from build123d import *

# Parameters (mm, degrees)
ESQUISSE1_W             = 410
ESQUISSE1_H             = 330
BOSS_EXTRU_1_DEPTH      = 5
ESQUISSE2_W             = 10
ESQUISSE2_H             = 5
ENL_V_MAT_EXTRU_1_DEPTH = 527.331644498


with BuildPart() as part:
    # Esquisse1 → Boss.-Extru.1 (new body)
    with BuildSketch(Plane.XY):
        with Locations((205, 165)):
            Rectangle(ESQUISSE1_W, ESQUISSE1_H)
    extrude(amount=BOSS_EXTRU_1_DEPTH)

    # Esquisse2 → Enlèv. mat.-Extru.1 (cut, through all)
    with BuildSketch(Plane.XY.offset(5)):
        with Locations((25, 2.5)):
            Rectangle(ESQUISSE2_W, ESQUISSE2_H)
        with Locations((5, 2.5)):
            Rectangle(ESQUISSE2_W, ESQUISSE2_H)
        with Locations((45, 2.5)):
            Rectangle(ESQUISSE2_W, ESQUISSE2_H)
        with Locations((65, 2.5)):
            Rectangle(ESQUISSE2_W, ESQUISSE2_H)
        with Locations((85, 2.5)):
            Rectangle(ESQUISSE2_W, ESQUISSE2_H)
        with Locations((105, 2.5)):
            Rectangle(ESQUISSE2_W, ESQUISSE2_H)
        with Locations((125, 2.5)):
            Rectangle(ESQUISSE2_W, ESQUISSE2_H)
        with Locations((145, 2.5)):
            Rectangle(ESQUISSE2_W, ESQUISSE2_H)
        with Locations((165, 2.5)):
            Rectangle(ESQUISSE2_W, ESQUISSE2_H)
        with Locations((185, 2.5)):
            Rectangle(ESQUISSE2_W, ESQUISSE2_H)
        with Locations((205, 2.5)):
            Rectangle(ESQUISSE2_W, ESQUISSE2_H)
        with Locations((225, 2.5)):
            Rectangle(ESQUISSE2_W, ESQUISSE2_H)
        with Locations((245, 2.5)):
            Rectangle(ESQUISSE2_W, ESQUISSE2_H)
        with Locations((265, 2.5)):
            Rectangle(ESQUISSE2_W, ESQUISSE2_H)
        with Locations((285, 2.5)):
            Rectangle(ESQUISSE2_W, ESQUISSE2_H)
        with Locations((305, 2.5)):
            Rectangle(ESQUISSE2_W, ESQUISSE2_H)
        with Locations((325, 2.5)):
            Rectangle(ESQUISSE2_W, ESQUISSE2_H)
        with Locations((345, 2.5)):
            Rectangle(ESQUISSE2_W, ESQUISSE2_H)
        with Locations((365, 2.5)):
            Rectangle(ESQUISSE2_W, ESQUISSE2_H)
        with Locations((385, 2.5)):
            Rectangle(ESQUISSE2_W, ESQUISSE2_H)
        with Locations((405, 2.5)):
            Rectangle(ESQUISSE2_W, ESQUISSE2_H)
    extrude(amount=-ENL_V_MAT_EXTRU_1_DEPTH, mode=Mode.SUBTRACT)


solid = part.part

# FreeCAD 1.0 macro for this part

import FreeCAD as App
import Part
import Sketcher
Q = App.Units.Quantity

doc = App.newDocument("Part")
body = doc.addObject("PartDesign::Body", "Body")

sketch1 = body.newObject("Sketcher::SketchObject", "Sketch")
sketch1.AttachmentSupport = (doc.getObject("XY_Plane"), [""])
sketch1.MapMode = "FlatFace"
sketch1.addGeometry([
    Part.LineSegment(App.Vector(0, 330, 0), App.Vector(0, 0, 0)),
    Part.LineSegment(App.Vector(0, 0, 0), App.Vector(410, 0, 0)),
    Part.LineSegment(App.Vector(410, 0, 0), App.Vector(410, 330, 0)),
    Part.LineSegment(App.Vector(410, 330, 0), App.Vector(0, 330, 0)),
], False)
sketch1.addConstraint([
    Sketcher.Constraint("Coincident", 0, 2, 1, 1),
    Sketcher.Constraint("Coincident", 1, 2, 2, 1),
    Sketcher.Constraint("Coincident", 2, 2, 3, 1),
    Sketcher.Constraint("Coincident", 3, 2, 0, 1),
    Sketcher.Constraint("Vertical", 0),
    Sketcher.Constraint("Horizontal", 1),
    Sketcher.Constraint("Vertical", 2),
    Sketcher.Constraint("Horizontal", 3),
    Sketcher.Constraint("Coincident", 0, 2, -1, 1),
    Sketcher.Constraint("DistanceX", 1, 1, 1, 2, Q("410 mm")),
    Sketcher.Constraint("DistanceY", 0, 2, 0, 1, Q("330 mm")),
])
pad1 = body.newObject("PartDesign::Pad", "Pad")
pad1.Profile = sketch1
pad1.Length = 5

sketch2 = body.newObject("Sketcher::SketchObject", "Sketch001")
sketch2.AttachmentSupport = (doc.getObject("XY_Plane"), [""])
sketch2.MapMode = "FlatFace"
sketch2.AttachmentOffset = App.Placement(App.Vector(0, 0, 5), App.Rotation())
sketch2.addGeometry([
    Part.LineSegment(App.Vector(20, 5, 0), App.Vector(20, 0, 0)),
    Part.LineSegment(App.Vector(20, 0, 0), App.Vector(30, 0, 0)),
    Part.LineSegment(App.Vector(30, 0, 0), App.Vector(30, 5, 0)),
    Part.LineSegment(App.Vector(30, 5, 0), App.Vector(20, 5, 0)),
    Part.LineSegment(App.Vector(0, 5, 0), App.Vector(0, 0, 0)),
    Part.LineSegment(App.Vector(0, 0, 0), App.Vector(10, 0, 0)),
    Part.LineSegment(App.Vector(10, 0, 0), App.Vector(10, 5, 0)),
    Part.LineSegment(App.Vector(10, 5, 0), App.Vector(0, 5, 0)),
    Part.LineSegment(App.Vector(40, 5, 0), App.Vector(40, 0, 0)),
    Part.LineSegment(App.Vector(40, 0, 0), App.Vector(50, 0, 0)),
    Part.LineSegment(App.Vector(50, 0, 0), App.Vector(50, 5, 0)),
    Part.LineSegment(App.Vector(50, 5, 0), App.Vector(40, 5, 0)),
    Part.LineSegment(App.Vector(60, 5, 0), App.Vector(60, 0, 0)),
    Part.LineSegment(App.Vector(60, 0, 0), App.Vector(70, 0, 0)),
    Part.LineSegment(App.Vector(70, 0, 0), App.Vector(70, 5, 0)),
    Part.LineSegment(App.Vector(70, 5, 0), App.Vector(60, 5, 0)),
    Part.LineSegment(App.Vector(80, 5, 0), App.Vector(80, 0, 0)),
    Part.LineSegment(App.Vector(80, 0, 0), App.Vector(90, 0, 0)),
    Part.LineSegment(App.Vector(90, 0, 0), App.Vector(90, 5, 0)),
    Part.LineSegment(App.Vector(90, 5, 0), App.Vector(80, 5, 0)),
    Part.LineSegment(App.Vector(100, 5, 0), App.Vector(100, 0, 0)),
    Part.LineSegment(App.Vector(100, 0, 0), App.Vector(110, 0, 0)),
    Part.LineSegment(App.Vector(110, 0, 0), App.Vector(110, 5, 0)),
    Part.LineSegment(App.Vector(110, 5, 0), App.Vector(100, 5, 0)),
    Part.LineSegment(App.Vector(120, 5, 0), App.Vector(120, 0, 0)),
    Part.LineSegment(App.Vector(120, 0, 0), App.Vector(130, 0, 0)),
    Part.LineSegment(App.Vector(130, 0, 0), App.Vector(130, 5, 0)),
    Part.LineSegment(App.Vector(130, 5, 0), App.Vector(120, 5, 0)),
    Part.LineSegment(App.Vector(140, 5, 0), App.Vector(140, 0, 0)),
    Part.LineSegment(App.Vector(140, 0, 0), App.Vector(150, 0, 0)),
    Part.LineSegment(App.Vector(150, 0, 0), App.Vector(150, 5, 0)),
    Part.LineSegment(App.Vector(150, 5, 0), App.Vector(140, 5, 0)),
    Part.LineSegment(App.Vector(160, 5, 0), App.Vector(160, 0, 0)),
    Part.LineSegment(App.Vector(160, 0, 0), App.Vector(170, 0, 0)),
    Part.LineSegment(App.Vector(170, 0, 0), App.Vector(170, 5, 0)),
    Part.LineSegment(App.Vector(170, 5, 0), App.Vector(160, 5, 0)),
    Part.LineSegment(App.Vector(180, 5, 0), App.Vector(180, 0, 0)),
    Part.LineSegment(App.Vector(180, 0, 0), App.Vector(190, 0, 0)),
    Part.LineSegment(App.Vector(190, 0, 0), App.Vector(190, 5, 0)),
    Part.LineSegment(App.Vector(190, 5, 0), App.Vector(180, 5, 0)),
    Part.LineSegment(App.Vector(200, 5, 0), App.Vector(200, 0, 0)),
    Part.LineSegment(App.Vector(200, 0, 0), App.Vector(210, 0, 0)),
    Part.LineSegment(App.Vector(210, 0, 0), App.Vector(210, 5, 0)),
    Part.LineSegment(App.Vector(210, 5, 0), App.Vector(200, 5, 0)),
    Part.LineSegment(App.Vector(220, 5, 0), App.Vector(220, 0, 0)),
    Part.LineSegment(App.Vector(220, 0, 0), App.Vector(230, 0, 0)),
    Part.LineSegment(App.Vector(230, 0, 0), App.Vector(230, 5, 0)),
    Part.LineSegment(App.Vector(230, 5, 0), App.Vector(220, 5, 0)),
    Part.LineSegment(App.Vector(240, 5, 0), App.Vector(240, 0, 0)),
    Part.LineSegment(App.Vector(240, 0, 0), App.Vector(250, 0, 0)),
    Part.LineSegment(App.Vector(250, 0, 0), App.Vector(250, 5, 0)),
    Part.LineSegment(App.Vector(250, 5, 0), App.Vector(240, 5, 0)),
    Part.LineSegment(App.Vector(260, 5, 0), App.Vector(260, 0, 0)),
    Part.LineSegment(App.Vector(260, 0, 0), App.Vector(270, 0, 0)),
    Part.LineSegment(App.Vector(270, 0, 0), App.Vector(270, 5, 0)),
    Part.LineSegment(App.Vector(270, 5, 0), App.Vector(260, 5, 0)),
    Part.LineSegment(App.Vector(280, 5, 0), App.Vector(280, 0, 0)),
    Part.LineSegment(App.Vector(280, 0, 0), App.Vector(290, 0, 0)),
    Part.LineSegment(App.Vector(290, 0, 0), App.Vector(290, 5, 0)),
    Part.LineSegment(App.Vector(290, 5, 0), App.Vector(280, 5, 0)),
    Part.LineSegment(App.Vector(300, 5, 0), App.Vector(300, 0, 0)),
    Part.LineSegment(App.Vector(300, 0, 0), App.Vector(310, 0, 0)),
    Part.LineSegment(App.Vector(310, 0, 0), App.Vector(310, 5, 0)),
    Part.LineSegment(App.Vector(310, 5, 0), App.Vector(300, 5, 0)),
    Part.LineSegment(App.Vector(320, 5, 0), App.Vector(320, 0, 0)),
    Part.LineSegment(App.Vector(320, 0, 0), App.Vector(330, 0, 0)),
    Part.LineSegment(App.Vector(330, 0, 0), App.Vector(330, 5, 0)),
    Part.LineSegment(App.Vector(330, 5, 0), App.Vector(320, 5, 0)),
    Part.LineSegment(App.Vector(340, 5, 0), App.Vector(340, 0, 0)),
    Part.LineSegment(App.Vector(340, 0, 0), App.Vector(350, 0, 0)),
    Part.LineSegment(App.Vector(350, 0, 0), App.Vector(350, 5, 0)),
    Part.LineSegment(App.Vector(350, 5, 0), App.Vector(340, 5, 0)),
    Part.LineSegment(App.Vector(360, 5, 0), App.Vector(360, 0, 0)),
    Part.LineSegment(App.Vector(360, 0, 0), App.Vector(370, 0, 0)),
    Part.LineSegment(App.Vector(370, 0, 0), App.Vector(370, 5, 0)),
    Part.LineSegment(App.Vector(370, 5, 0), App.Vector(360, 5, 0)),
    Part.LineSegment(App.Vector(380, 5, 0), App.Vector(380, 0, 0)),
    Part.LineSegment(App.Vector(380, 0, 0), App.Vector(390, 0, 0)),
    Part.LineSegment(App.Vector(390, 0, 0), App.Vector(390, 5, 0)),
    Part.LineSegment(App.Vector(390, 5, 0), App.Vector(380, 5, 0)),
    Part.LineSegment(App.Vector(400, 5, 0), App.Vector(400, 0, 0)),
    Part.LineSegment(App.Vector(400, 0, 0), App.Vector(410, 0, 0)),
    Part.LineSegment(App.Vector(410, 0, 0), App.Vector(410, 5, 0)),
    Part.LineSegment(App.Vector(410, 5, 0), App.Vector(400, 5, 0)),
], False)
sketch2.addConstraint([
    Sketcher.Constraint("Coincident", 0, 2, 1, 1),
    Sketcher.Constraint("Coincident", 1, 2, 2, 1),
    Sketcher.Constraint("Coincident", 2, 2, 3, 1),
    Sketcher.Constraint("Coincident", 3, 2, 0, 1),
    Sketcher.Constraint("Coincident", 4, 2, 5, 1),
    Sketcher.Constraint("Coincident", 5, 2, 6, 1),
    Sketcher.Constraint("Coincident", 6, 2, 7, 1),
    Sketcher.Constraint("Coincident", 7, 2, 4, 1),
    Sketcher.Constraint("Coincident", 8, 2, 9, 1),
    Sketcher.Constraint("Coincident", 9, 2, 10, 1),
    Sketcher.Constraint("Coincident", 10, 2, 11, 1),
    Sketcher.Constraint("Coincident", 11, 2, 8, 1),
    Sketcher.Constraint("Coincident", 12, 2, 13, 1),
    Sketcher.Constraint("Coincident", 13, 2, 14, 1),
    Sketcher.Constraint("Coincident", 14, 2, 15, 1),
    Sketcher.Constraint("Coincident", 15, 2, 12, 1),
    Sketcher.Constraint("Coincident", 16, 2, 17, 1),
    Sketcher.Constraint("Coincident", 17, 2, 18, 1),
    Sketcher.Constraint("Coincident", 18, 2, 19, 1),
    Sketcher.Constraint("Coincident", 19, 2, 16, 1),
    Sketcher.Constraint("Coincident", 20, 2, 21, 1),
    Sketcher.Constraint("Coincident", 21, 2, 22, 1),
    Sketcher.Constraint("Coincident", 22, 2, 23, 1),
    Sketcher.Constraint("Coincident", 23, 2, 20, 1),
    Sketcher.Constraint("Coincident", 24, 2, 25, 1),
    Sketcher.Constraint("Coincident", 25, 2, 26, 1),
    Sketcher.Constraint("Coincident", 26, 2, 27, 1),
    Sketcher.Constraint("Coincident", 27, 2, 24, 1),
    Sketcher.Constraint("Coincident", 28, 2, 29, 1),
    Sketcher.Constraint("Coincident", 29, 2, 30, 1),
    Sketcher.Constraint("Coincident", 30, 2, 31, 1),
    Sketcher.Constraint("Coincident", 31, 2, 28, 1),
    Sketcher.Constraint("Coincident", 32, 2, 33, 1),
    Sketcher.Constraint("Coincident", 33, 2, 34, 1),
    Sketcher.Constraint("Coincident", 34, 2, 35, 1),
    Sketcher.Constraint("Coincident", 35, 2, 32, 1),
    Sketcher.Constraint("Coincident", 36, 2, 37, 1),
    Sketcher.Constraint("Coincident", 37, 2, 38, 1),
    Sketcher.Constraint("Coincident", 38, 2, 39, 1),
    Sketcher.Constraint("Coincident", 39, 2, 36, 1),
    Sketcher.Constraint("Coincident", 40, 2, 41, 1),
    Sketcher.Constraint("Coincident", 41, 2, 42, 1),
    Sketcher.Constraint("Coincident", 42, 2, 43, 1),
    Sketcher.Constraint("Coincident", 43, 2, 40, 1),
    Sketcher.Constraint("Coincident", 44, 2, 45, 1),
    Sketcher.Constraint("Coincident", 45, 2, 46, 1),
    Sketcher.Constraint("Coincident", 46, 2, 47, 1),
    Sketcher.Constraint("Coincident", 47, 2, 44, 1),
    Sketcher.Constraint("Coincident", 48, 2, 49, 1),
    Sketcher.Constraint("Coincident", 49, 2, 50, 1),
    Sketcher.Constraint("Coincident", 50, 2, 51, 1),
    Sketcher.Constraint("Coincident", 51, 2, 48, 1),
    Sketcher.Constraint("Coincident", 52, 2, 53, 1),
    Sketcher.Constraint("Coincident", 53, 2, 54, 1),
    Sketcher.Constraint("Coincident", 54, 2, 55, 1),
    Sketcher.Constraint("Coincident", 55, 2, 52, 1),
    Sketcher.Constraint("Coincident", 56, 2, 57, 1),
    Sketcher.Constraint("Coincident", 57, 2, 58, 1),
    Sketcher.Constraint("Coincident", 58, 2, 59, 1),
    Sketcher.Constraint("Coincident", 59, 2, 56, 1),
    Sketcher.Constraint("Coincident", 60, 2, 61, 1),
    Sketcher.Constraint("Coincident", 61, 2, 62, 1),
    Sketcher.Constraint("Coincident", 62, 2, 63, 1),
    Sketcher.Constraint("Coincident", 63, 2, 60, 1),
    Sketcher.Constraint("Coincident", 64, 2, 65, 1),
    Sketcher.Constraint("Coincident", 65, 2, 66, 1),
    Sketcher.Constraint("Coincident", 66, 2, 67, 1),
    Sketcher.Constraint("Coincident", 67, 2, 64, 1),
    Sketcher.Constraint("Coincident", 68, 2, 69, 1),
    Sketcher.Constraint("Coincident", 69, 2, 70, 1),
    Sketcher.Constraint("Coincident", 70, 2, 71, 1),
    Sketcher.Constraint("Coincident", 71, 2, 68, 1),
    Sketcher.Constraint("Coincident", 72, 2, 73, 1),
    Sketcher.Constraint("Coincident", 73, 2, 74, 1),
    Sketcher.Constraint("Coincident", 74, 2, 75, 1),
    Sketcher.Constraint("Coincident", 75, 2, 72, 1),
    Sketcher.Constraint("Coincident", 76, 2, 77, 1),
    Sketcher.Constraint("Coincident", 77, 2, 78, 1),
    Sketcher.Constraint("Coincident", 78, 2, 79, 1),
    Sketcher.Constraint("Coincident", 79, 2, 76, 1),
    Sketcher.Constraint("Coincident", 80, 2, 81, 1),
    Sketcher.Constraint("Coincident", 81, 2, 82, 1),
    Sketcher.Constraint("Coincident", 82, 2, 83, 1),
    Sketcher.Constraint("Coincident", 83, 2, 80, 1),
    Sketcher.Constraint("Vertical", 0),
    Sketcher.Constraint("Horizontal", 1),
    Sketcher.Constraint("Vertical", 2),
    Sketcher.Constraint("Horizontal", 3),
    Sketcher.Constraint("Vertical", 4),
    Sketcher.Constraint("Horizontal", 5),
    Sketcher.Constraint("Vertical", 6),
    Sketcher.Constraint("Horizontal", 7),
    Sketcher.Constraint("Vertical", 8),
    Sketcher.Constraint("Horizontal", 9),
    Sketcher.Constraint("Vertical", 10),
    Sketcher.Constraint("Horizontal", 11),
    Sketcher.Constraint("Vertical", 12),
    Sketcher.Constraint("Horizontal", 13),
    Sketcher.Constraint("Vertical", 14),
    Sketcher.Constraint("Horizontal", 15),
    Sketcher.Constraint("Vertical", 16),
    Sketcher.Constraint("Horizontal", 17),
    Sketcher.Constraint("Vertical", 18),
    Sketcher.Constraint("Horizontal", 19),
    Sketcher.Constraint("Vertical", 20),
    Sketcher.Constraint("Horizontal", 21),
    Sketcher.Constraint("Vertical", 22),
    Sketcher.Constraint("Horizontal", 23),
    Sketcher.Constraint("Vertical", 24),
    Sketcher.Constraint("Horizontal", 25),
    Sketcher.Constraint("Vertical", 26),
    Sketcher.Constraint("Horizontal", 27),
    Sketcher.Constraint("Vertical", 28),
    Sketcher.Constraint("Horizontal", 29),
    Sketcher.Constraint("Vertical", 30),
    Sketcher.Constraint("Horizontal", 31),
    Sketcher.Constraint("Vertical", 32),
    Sketcher.Constraint("Horizontal", 33),
    Sketcher.Constraint("Vertical", 34),
    Sketcher.Constraint("Horizontal", 35),
    Sketcher.Constraint("Vertical", 36),
    Sketcher.Constraint("Horizontal", 37),
    Sketcher.Constraint("Vertical", 38),
    Sketcher.Constraint("Horizontal", 39),
    Sketcher.Constraint("Vertical", 40),
    Sketcher.Constraint("Horizontal", 41),
    Sketcher.Constraint("Vertical", 42),
    Sketcher.Constraint("Horizontal", 43),
    Sketcher.Constraint("Vertical", 44),
    Sketcher.Constraint("Horizontal", 45),
    Sketcher.Constraint("Vertical", 46),
    Sketcher.Constraint("Horizontal", 47),
    Sketcher.Constraint("Vertical", 48),
    Sketcher.Constraint("Horizontal", 49),
    Sketcher.Constraint("Vertical", 50),
    Sketcher.Constraint("Horizontal", 51),
    Sketcher.Constraint("Vertical", 52),
    Sketcher.Constraint("Horizontal", 53),
    Sketcher.Constraint("Vertical", 54),
    Sketcher.Constraint("Horizontal", 55),
    Sketcher.Constraint("Vertical", 56),
    Sketcher.Constraint("Horizontal", 57),
    Sketcher.Constraint("Vertical", 58),
    Sketcher.Constraint("Horizontal", 59),
    Sketcher.Constraint("Vertical", 60),
    Sketcher.Constraint("Horizontal", 61),
    Sketcher.Constraint("Vertical", 62),
    Sketcher.Constraint("Horizontal", 63),
    Sketcher.Constraint("Vertical", 64),
    Sketcher.Constraint("Horizontal", 65),
    Sketcher.Constraint("Vertical", 66),
    Sketcher.Constraint("Horizontal", 67),
    Sketcher.Constraint("Vertical", 68),
    Sketcher.Constraint("Horizontal", 69),
    Sketcher.Constraint("Vertical", 70),
    Sketcher.Constraint("Horizontal", 71),
    Sketcher.Constraint("Vertical", 72),
    Sketcher.Constraint("Horizontal", 73),
    Sketcher.Constraint("Vertical", 74),
    Sketcher.Constraint("Horizontal", 75),
    Sketcher.Constraint("Vertical", 76),
    Sketcher.Constraint("Horizontal", 77),
    Sketcher.Constraint("Vertical", 78),
    Sketcher.Constraint("Horizontal", 79),
    Sketcher.Constraint("Vertical", 80),
    Sketcher.Constraint("Horizontal", 81),
    Sketcher.Constraint("Vertical", 82),
    Sketcher.Constraint("Horizontal", 83),
    Sketcher.Constraint("Coincident", 4, 2, -1, 1),
    Sketcher.Constraint("PointOnObject", 0, 2, -1),
    Sketcher.Constraint("PointOnObject", 8, 2, -1),
    Sketcher.Constraint("PointOnObject", 12, 2, -1),
    Sketcher.Constraint("PointOnObject", 16, 2, -1),
    Sketcher.Constraint("PointOnObject", 20, 2, -1),
    Sketcher.Constraint("PointOnObject", 24, 2, -1),
    Sketcher.Constraint("PointOnObject", 28, 2, -1),
    Sketcher.Constraint("PointOnObject", 32, 2, -1),
    Sketcher.Constraint("PointOnObject", 36, 2, -1),
    Sketcher.Constraint("PointOnObject", 40, 2, -1),
    Sketcher.Constraint("PointOnObject", 44, 2, -1),
    Sketcher.Constraint("PointOnObject", 48, 2, -1),
    Sketcher.Constraint("PointOnObject", 52, 2, -1),
    Sketcher.Constraint("PointOnObject", 56, 2, -1),
    Sketcher.Constraint("PointOnObject", 60, 2, -1),
    Sketcher.Constraint("PointOnObject", 64, 2, -1),
    Sketcher.Constraint("PointOnObject", 68, 2, -1),
    Sketcher.Constraint("PointOnObject", 72, 2, -1),
    Sketcher.Constraint("PointOnObject", 76, 2, -1),
    Sketcher.Constraint("PointOnObject", 80, 2, -1),
    Sketcher.Constraint("Horizontal", 3, 2, 6, 2),
    Sketcher.Constraint("Horizontal", 7, 2, 10, 2),
    Sketcher.Constraint("Horizontal", 11, 2, 14, 2),
    Sketcher.Constraint("Horizontal", 15, 2, 18, 2),
    Sketcher.Constraint("Horizontal", 19, 2, 22, 2),
    Sketcher.Constraint("Horizontal", 23, 2, 26, 2),
    Sketcher.Constraint("Horizontal", 27, 2, 30, 2),
    Sketcher.Constraint("Horizontal", 31, 2, 34, 2),
    Sketcher.Constraint("Horizontal", 35, 2, 38, 2),
    Sketcher.Constraint("Horizontal", 39, 2, 42, 2),
    Sketcher.Constraint("Horizontal", 43, 2, 46, 2),
    Sketcher.Constraint("Horizontal", 47, 2, 50, 2),
    Sketcher.Constraint("Horizontal", 51, 2, 54, 2),
    Sketcher.Constraint("Horizontal", 55, 2, 58, 2),
    Sketcher.Constraint("Horizontal", 59, 2, 62, 2),
    Sketcher.Constraint("Horizontal", 63, 2, 66, 2),
    Sketcher.Constraint("Horizontal", 67, 2, 70, 2),
    Sketcher.Constraint("Horizontal", 71, 2, 74, 2),
    Sketcher.Constraint("Horizontal", 75, 2, 78, 2),
    Sketcher.Constraint("Horizontal", 79, 2, 82, 2),
    Sketcher.Constraint("Equal", 3, 5),
    Sketcher.Constraint("Equal", 7, 9),
    Sketcher.Constraint("Equal", 11, 13),
    Sketcher.Constraint("Equal", 15, 17),
    Sketcher.Constraint("Equal", 19, 21),
    Sketcher.Constraint("Equal", 23, 25),
    Sketcher.Constraint("Equal", 27, 29),
    Sketcher.Constraint("Equal", 31, 33),
    Sketcher.Constraint("Equal", 35, 37),
    Sketcher.Constraint("Equal", 39, 41),
    Sketcher.Constraint("Equal", 43, 45),
    Sketcher.Constraint("Equal", 47, 49),
    Sketcher.Constraint("Equal", 51, 53),
    Sketcher.Constraint("Equal", 55, 57),
    Sketcher.Constraint("Equal", 59, 61),
    Sketcher.Constraint("Equal", 63, 65),
    Sketcher.Constraint("Equal", 67, 69),
    Sketcher.Constraint("Equal", 71, 73),
    Sketcher.Constraint("Equal", 75, 77),
    Sketcher.Constraint("Equal", 79, 81),
    Sketcher.Constraint("DistanceX", 1, 1, 1, 2, Q("10 mm")),
    Sketcher.Constraint("DistanceY", 0, 2, 0, 1, Q("5 mm")),
    Sketcher.Constraint("DistanceX", -1, 1, 0, 2, Q("20 mm")),
    Sketcher.Constraint("DistanceX", -1, 1, 8, 2, Q("40 mm")),
    Sketcher.Constraint("DistanceX", -1, 1, 12, 2, Q("60 mm")),
    Sketcher.Constraint("DistanceX", -1, 1, 16, 2, Q("80 mm")),
    Sketcher.Constraint("DistanceX", -1, 1, 20, 2, Q("100 mm")),
    Sketcher.Constraint("DistanceX", -1, 1, 24, 2, Q("120 mm")),
    Sketcher.Constraint("DistanceX", -1, 1, 28, 2, Q("140 mm")),
    Sketcher.Constraint("DistanceX", -1, 1, 32, 2, Q("160 mm")),
    Sketcher.Constraint("DistanceX", -1, 1, 36, 2, Q("180 mm")),
    Sketcher.Constraint("DistanceX", -1, 1, 40, 2, Q("200 mm")),
    Sketcher.Constraint("DistanceX", -1, 1, 44, 2, Q("220 mm")),
    Sketcher.Constraint("DistanceX", -1, 1, 48, 2, Q("240 mm")),
    Sketcher.Constraint("DistanceX", -1, 1, 52, 2, Q("260 mm")),
    Sketcher.Constraint("DistanceX", -1, 1, 56, 2, Q("280 mm")),
    Sketcher.Constraint("DistanceX", -1, 1, 60, 2, Q("300 mm")),
    Sketcher.Constraint("DistanceX", -1, 1, 64, 2, Q("320 mm")),
    Sketcher.Constraint("DistanceX", -1, 1, 68, 2, Q("340 mm")),
    Sketcher.Constraint("DistanceX", -1, 1, 72, 2, Q("360 mm")),
    Sketcher.Constraint("DistanceX", -1, 1, 76, 2, Q("380 mm")),
    Sketcher.Constraint("DistanceX", -1, 1, 80, 2, Q("400 mm")),
])
pocket1 = body.newObject("PartDesign::Pocket", "Pocket")
pocket1.Profile = sketch2
pocket1.Type = "ThroughAll"

doc.recompute()
